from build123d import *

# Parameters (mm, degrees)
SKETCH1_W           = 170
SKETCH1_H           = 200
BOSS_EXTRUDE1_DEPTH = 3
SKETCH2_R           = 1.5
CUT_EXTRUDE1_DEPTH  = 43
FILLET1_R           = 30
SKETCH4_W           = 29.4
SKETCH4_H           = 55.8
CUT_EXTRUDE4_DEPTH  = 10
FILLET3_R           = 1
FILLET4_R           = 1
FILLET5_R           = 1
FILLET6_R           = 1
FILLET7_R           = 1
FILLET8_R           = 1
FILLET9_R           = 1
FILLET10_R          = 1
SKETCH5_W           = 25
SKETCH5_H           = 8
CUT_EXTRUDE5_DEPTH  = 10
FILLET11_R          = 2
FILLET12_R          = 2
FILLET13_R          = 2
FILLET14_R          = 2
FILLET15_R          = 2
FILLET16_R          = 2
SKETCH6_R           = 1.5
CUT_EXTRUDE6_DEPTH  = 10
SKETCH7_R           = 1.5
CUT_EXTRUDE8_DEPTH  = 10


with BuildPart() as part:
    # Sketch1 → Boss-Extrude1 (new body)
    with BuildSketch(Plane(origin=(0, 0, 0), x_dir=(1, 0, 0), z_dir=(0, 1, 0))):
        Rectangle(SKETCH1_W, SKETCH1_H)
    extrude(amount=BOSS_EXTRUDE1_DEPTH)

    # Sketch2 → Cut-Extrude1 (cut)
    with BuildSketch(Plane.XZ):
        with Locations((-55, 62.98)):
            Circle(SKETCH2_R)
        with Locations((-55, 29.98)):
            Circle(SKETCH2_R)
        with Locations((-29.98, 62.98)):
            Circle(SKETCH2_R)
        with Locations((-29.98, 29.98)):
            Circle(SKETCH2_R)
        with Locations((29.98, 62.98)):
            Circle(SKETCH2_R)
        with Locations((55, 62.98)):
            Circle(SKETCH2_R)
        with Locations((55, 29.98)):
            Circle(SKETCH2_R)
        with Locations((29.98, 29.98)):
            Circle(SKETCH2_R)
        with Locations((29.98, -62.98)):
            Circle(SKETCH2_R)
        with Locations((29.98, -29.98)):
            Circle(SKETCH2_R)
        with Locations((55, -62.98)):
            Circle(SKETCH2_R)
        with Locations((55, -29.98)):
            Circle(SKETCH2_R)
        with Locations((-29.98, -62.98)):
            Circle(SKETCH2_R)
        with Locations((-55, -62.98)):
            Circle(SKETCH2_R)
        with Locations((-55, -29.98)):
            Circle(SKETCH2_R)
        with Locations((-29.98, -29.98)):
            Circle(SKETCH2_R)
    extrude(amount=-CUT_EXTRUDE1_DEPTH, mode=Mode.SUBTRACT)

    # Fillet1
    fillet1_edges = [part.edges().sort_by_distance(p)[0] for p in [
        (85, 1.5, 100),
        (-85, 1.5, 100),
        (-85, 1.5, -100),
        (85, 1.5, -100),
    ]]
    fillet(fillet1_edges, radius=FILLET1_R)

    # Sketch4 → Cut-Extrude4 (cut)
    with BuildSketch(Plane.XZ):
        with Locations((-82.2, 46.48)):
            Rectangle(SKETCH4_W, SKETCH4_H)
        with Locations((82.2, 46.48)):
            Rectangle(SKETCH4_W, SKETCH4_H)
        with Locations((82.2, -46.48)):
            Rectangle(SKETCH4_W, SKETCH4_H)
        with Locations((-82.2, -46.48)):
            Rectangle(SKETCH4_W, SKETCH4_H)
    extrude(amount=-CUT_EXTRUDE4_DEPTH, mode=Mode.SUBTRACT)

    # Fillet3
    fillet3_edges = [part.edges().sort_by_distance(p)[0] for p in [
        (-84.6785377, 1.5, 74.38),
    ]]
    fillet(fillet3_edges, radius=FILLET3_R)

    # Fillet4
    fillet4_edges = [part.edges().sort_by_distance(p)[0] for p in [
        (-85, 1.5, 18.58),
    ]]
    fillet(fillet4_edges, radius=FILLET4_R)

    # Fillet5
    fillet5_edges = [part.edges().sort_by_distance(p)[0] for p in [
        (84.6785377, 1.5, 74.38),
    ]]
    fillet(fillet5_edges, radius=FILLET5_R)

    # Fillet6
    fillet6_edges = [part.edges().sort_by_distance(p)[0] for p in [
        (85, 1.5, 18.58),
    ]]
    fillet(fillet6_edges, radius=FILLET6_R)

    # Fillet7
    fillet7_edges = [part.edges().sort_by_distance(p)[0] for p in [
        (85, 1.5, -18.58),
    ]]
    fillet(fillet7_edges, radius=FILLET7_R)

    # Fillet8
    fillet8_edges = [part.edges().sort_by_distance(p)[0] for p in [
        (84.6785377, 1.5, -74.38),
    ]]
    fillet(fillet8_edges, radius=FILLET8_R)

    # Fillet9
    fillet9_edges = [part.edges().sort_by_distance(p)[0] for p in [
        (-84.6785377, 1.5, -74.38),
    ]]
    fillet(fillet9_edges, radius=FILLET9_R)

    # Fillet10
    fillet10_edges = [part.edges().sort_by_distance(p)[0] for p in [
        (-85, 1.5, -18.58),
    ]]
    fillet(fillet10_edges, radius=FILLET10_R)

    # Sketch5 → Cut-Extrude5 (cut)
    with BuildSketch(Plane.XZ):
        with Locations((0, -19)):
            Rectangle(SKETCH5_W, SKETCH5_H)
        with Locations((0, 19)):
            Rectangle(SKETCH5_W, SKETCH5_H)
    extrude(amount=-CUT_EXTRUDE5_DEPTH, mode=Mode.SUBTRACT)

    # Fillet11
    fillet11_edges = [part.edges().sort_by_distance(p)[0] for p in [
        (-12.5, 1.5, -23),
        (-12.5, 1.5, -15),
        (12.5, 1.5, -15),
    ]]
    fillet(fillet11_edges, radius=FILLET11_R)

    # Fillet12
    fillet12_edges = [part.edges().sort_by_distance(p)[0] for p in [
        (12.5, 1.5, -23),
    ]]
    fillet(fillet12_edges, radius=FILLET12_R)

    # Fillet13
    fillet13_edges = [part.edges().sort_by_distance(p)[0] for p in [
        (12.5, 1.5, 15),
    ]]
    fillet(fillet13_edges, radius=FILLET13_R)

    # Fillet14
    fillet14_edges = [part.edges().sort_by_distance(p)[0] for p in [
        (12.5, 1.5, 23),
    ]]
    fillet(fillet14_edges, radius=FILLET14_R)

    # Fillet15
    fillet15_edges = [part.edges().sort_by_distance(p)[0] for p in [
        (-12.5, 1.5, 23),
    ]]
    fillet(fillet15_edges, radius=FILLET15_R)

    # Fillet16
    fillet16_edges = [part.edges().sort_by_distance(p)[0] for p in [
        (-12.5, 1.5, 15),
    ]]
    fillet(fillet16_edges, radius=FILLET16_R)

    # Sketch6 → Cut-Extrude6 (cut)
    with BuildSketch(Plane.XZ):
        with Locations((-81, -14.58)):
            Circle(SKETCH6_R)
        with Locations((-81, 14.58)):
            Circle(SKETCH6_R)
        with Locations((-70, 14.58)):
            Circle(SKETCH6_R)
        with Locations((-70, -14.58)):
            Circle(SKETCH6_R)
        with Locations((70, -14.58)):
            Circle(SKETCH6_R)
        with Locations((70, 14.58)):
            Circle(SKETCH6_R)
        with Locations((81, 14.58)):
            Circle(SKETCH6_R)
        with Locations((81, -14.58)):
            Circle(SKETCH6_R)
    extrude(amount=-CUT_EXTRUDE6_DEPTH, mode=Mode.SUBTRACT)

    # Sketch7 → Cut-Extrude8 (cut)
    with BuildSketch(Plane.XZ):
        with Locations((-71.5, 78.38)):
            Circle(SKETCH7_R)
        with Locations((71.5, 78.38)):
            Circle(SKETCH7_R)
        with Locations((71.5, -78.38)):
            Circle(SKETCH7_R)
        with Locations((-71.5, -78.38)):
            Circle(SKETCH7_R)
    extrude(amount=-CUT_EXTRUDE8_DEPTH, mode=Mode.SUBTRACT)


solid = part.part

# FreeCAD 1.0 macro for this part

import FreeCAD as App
import Part
import Sketcher

V = App.Vector


def edges_at(feature, points):
    """Names of the edges that pass closest to the given points."""
    edges = feature.Shape.Edges
    near = lambda p: min(range(len(edges)), key=lambda i: edges[i].distToShape(Part.Vertex(*p))[0])
    return sorted({f"Edge{near(p) + 1}" for p in points})

doc = App.newDocument("Part")
body = doc.addObject("PartDesign::Body", "Body")

sketch1 = body.newObject("Sketcher::SketchObject", "Sketch")
sketch1.AttachmentSupport = (doc.getObject("XZ_Plane"), [""])
sketch1.MapMode = "FlatFace"
sketch1.addGeometry([
    Part.LineSegment(V(-85, -100, 0), V(-85, 100, 0)),
    Part.LineSegment(V(-85, 100, 0), V(85, 100, 0)),
    Part.LineSegment(V(85, 100, 0), V(85, -100, 0)),
    Part.LineSegment(V(85, -100, 0), V(-85, -100, 0)),
], False)
sketch1.addConstraint([
    Sketcher.Constraint("Coincident", 0, 2, 1, 1),
    Sketcher.Constraint("Coincident", 1, 2, 2, 1),
    Sketcher.Constraint("Coincident", 2, 2, 3, 1),
    Sketcher.Constraint("Coincident", 3, 2, 0, 1),
    Sketcher.Constraint("Vertical", 0),
    Sketcher.Constraint("Horizontal", 1),
    Sketcher.Constraint("Vertical", 2),
    Sketcher.Constraint("Horizontal", 3),
    Sketcher.Constraint("Symmetric", 0, 2, 2, 2, -1, 1),
    Sketcher.Constraint("DistanceX", 1, 1, 1, 2, 170.0),
    Sketcher.Constraint("DistanceY", 0, 1, 0, 2, 200.0),
])
pad1 = body.newObject("PartDesign::Pad", "Pad")
pad1.Profile = sketch1
pad1.Length = 3
pad1.Reversed = True

sketch2 = body.newObject("Sketcher::SketchObject", "Sketch001")
sketch2.AttachmentSupport = (doc.getObject("XZ_Plane"), [""])
sketch2.MapMode = "FlatFace"
sketch2.addGeometry([
    Part.Circle(V(-55, 63, 0), V(0, 0, 1), 1.5),
    Part.Circle(V(-55, 30, 0), V(0, 0, 1), 1.5),
    Part.Circle(V(-30, 63, 0), V(0, 0, 1), 1.5),
    Part.Circle(V(-30, 30, 0), V(0, 0, 1), 1.5),
    Part.Circle(V(30, 63, 0), V(0, 0, 1), 1.5),
    Part.Circle(V(55, 63, 0), V(0, 0, 1), 1.5),
    Part.Circle(V(55, 30, 0), V(0, 0, 1), 1.5),
    Part.Circle(V(30, 30, 0), V(0, 0, 1), 1.5),
    Part.Circle(V(30, -63, 0), V(0, 0, 1), 1.5),
    Part.Circle(V(30, -30, 0), V(0, 0, 1), 1.5),
    Part.Circle(V(55, -63, 0), V(0, 0, 1), 1.5),
    Part.Circle(V(55, -30, 0), V(0, 0, 1), 1.5),
    Part.Circle(V(-30, -63, 0), V(0, 0, 1), 1.5),
    Part.Circle(V(-55, -63, 0), V(0, 0, 1), 1.5),
    Part.Circle(V(-55, -30, 0), V(0, 0, 1), 1.5),
    Part.Circle(V(-30, -30, 0), V(0, 0, 1), 1.5),
], False)
sketch2.addConstraint([
    Sketcher.Constraint("Equal", 0, 1),
    Sketcher.Constraint("Equal", 1, 2),
    Sketcher.Constraint("Equal", 2, 3),
    Sketcher.Constraint("Equal", 3, 4),
    Sketcher.Constraint("Equal", 4, 5),
    Sketcher.Constraint("Equal", 5, 6),
    Sketcher.Constraint("Equal", 6, 7),
    Sketcher.Constraint("Equal", 7, 8),
    Sketcher.Constraint("Equal", 8, 9),
    Sketcher.Constraint("Equal", 9, 10),
    Sketcher.Constraint("Equal", 10, 11),
    Sketcher.Constraint("Equal", 11, 12),
    Sketcher.Constraint("Equal", 12, 13),
    Sketcher.Constraint("Equal", 13, 14),
    Sketcher.Constraint("Equal", 14, 15),
    Sketcher.Constraint("Symmetric", 2, 3, 8, 3, -1, 1),
    Sketcher.Constraint("Symmetric", 3, 3, 9, 3, -1, 1),
    Sketcher.Constraint("Symmetric", 0, 3, 10, 3, -1, 1),
    Sketcher.Constraint("Symmetric", 1, 3, 11, 3, -1, 1),
    Sketcher.Constraint("Symmetric", 4, 3, 12, 3, -1, 1),
    Sketcher.Constraint("Symmetric", 5, 3, 13, 3, -1, 1),
    Sketcher.Constraint("Symmetric", 6, 3, 14, 3, -1, 1),
    Sketcher.Constraint("Symmetric", 7, 3, 15, 3, -1, 1),
    Sketcher.Constraint("Symmetric", 2, 3, 4, 3, -2),
    Sketcher.Constraint("Symmetric", 0, 3, 5, 3, -2),
    Sketcher.Constraint("Symmetric", 1, 3, 6, 3, -2),
    Sketcher.Constraint("Symmetric", 3, 3, 7, 3, -2),
    Sketcher.Constraint("Horizontal", 0, 3, 2, 3),
    Sketcher.Constraint("Horizontal", 1, 3, 3, 3),
    Sketcher.Constraint("Vertical", 0, 3, 1, 3),
    Sketcher.Constraint("Vertical", 2, 3, 3, 3),
    Sketcher.Constraint("Diameter", 0, 3.0),
    Sketcher.Constraint("DistanceX", 0, 3, -1, 1, 55.0),
    Sketcher.Constraint("DistanceY", 1, 3, 0, 3, 33.0),
    Sketcher.Constraint("DistanceY", -1, 1, 0, 3, 62.98),
    Sketcher.Constraint("DistanceX", 2, 3, -1, 1, 29.98),
])
pocket1 = body.newObject("PartDesign::Pocket", "Pocket")
pocket1.Profile = sketch2
pocket1.Length = 43
doc.recompute()

fillet = body.newObject("PartDesign::Fillet", "Fillet")
fillet.Base = (pocket1, edges_at(pocket1, [
    (85, 1.5, 100),
    (-85, 1.5, 100),
    (-85, 1.5, -100),
    (85, 1.5, -100),
]))
fillet.Radius = 30

sketch3 = body.newObject("Sketcher::SketchObject", "Sketch002")
sketch3.AttachmentSupport = (doc.getObject("XZ_Plane"), [""])
sketch3.MapMode = "FlatFace"
sketch3.addGeometry([
    Part.LineSegment(V(-97, 74, 0), V(-97, 19, 0)),
    Part.LineSegment(V(-97, 19, 0), V(-68, 19, 0)),
    Part.LineSegment(V(-68, 19, 0), V(-68, 74, 0)),
    Part.LineSegment(V(-68, 74, 0), V(-97, 74, 0)),
    Part.LineSegment(V(68, 74, 0), V(68, 19, 0)),
    Part.LineSegment(V(68, 19, 0), V(97, 19, 0)),
    Part.LineSegment(V(97, 19, 0), V(97, 74, 0)),
    Part.LineSegment(V(97, 74, 0), V(68, 74, 0)),
    Part.LineSegment(V(68, -19, 0), V(68, -74, 0)),
    Part.LineSegment(V(68, -74, 0), V(97, -74, 0)),
    Part.LineSegment(V(97, -74, 0), V(97, -19, 0)),
    Part.LineSegment(V(97, -19, 0), V(68, -19, 0)),
    Part.LineSegment(V(-97, -19, 0), V(-97, -74, 0)),
    Part.LineSegment(V(-97, -74, 0), V(-68, -74, 0)),
    Part.LineSegment(V(-68, -74, 0), V(-68, -19, 0)),
    Part.LineSegment(V(-68, -19, 0), V(-97, -19, 0)),
], False)
sketch3.addConstraint([
    Sketcher.Constraint("Coincident", 0, 2, 1, 1),
    Sketcher.Constraint("Coincident", 1, 2, 2, 1),
    Sketcher.Constraint("Coincident", 2, 2, 3, 1),
    Sketcher.Constraint("Coincident", 3, 2, 0, 1),
    Sketcher.Constraint("Coincident", 4, 2, 5, 1),
    Sketcher.Constraint("Coincident", 5, 2, 6, 1),
    Sketcher.Constraint("Coincident", 6, 2, 7, 1),
    Sketcher.Constraint("Coincident", 7, 2, 4, 1),
    Sketcher.Constraint("Coincident", 8, 2, 9, 1),
    Sketcher.Constraint("Coincident", 9, 2, 10, 1),
    Sketcher.Constraint("Coincident", 10, 2, 11, 1),
    Sketcher.Constraint("Coincident", 11, 2, 8, 1),
    Sketcher.Constraint("Coincident", 12, 2, 13, 1),
    Sketcher.Constraint("Coincident", 13, 2, 14, 1),
    Sketcher.Constraint("Coincident", 14, 2, 15, 1),
    Sketcher.Constraint("Coincident", 15, 2, 12, 1),
    Sketcher.Constraint("Vertical", 0),
    Sketcher.Constraint("Horizontal", 1),
    Sketcher.Constraint("Vertical", 2),
    Sketcher.Constraint("Horizontal", 3),
    Sketcher.Constraint("Vertical", 4),
    Sketcher.Constraint("Horizontal", 5),
    Sketcher.Constraint("Vertical", 6),
    Sketcher.Constraint("Horizontal", 7),
    Sketcher.Constraint("Vertical", 8),
    Sketcher.Constraint("Horizontal", 9),
    Sketcher.Constraint("Vertical", 10),
    Sketcher.Constraint("Horizontal", 11),
    Sketcher.Constraint("Vertical", 12),
    Sketcher.Constraint("Horizontal", 13),
    Sketcher.Constraint("Vertical", 14),
    Sketcher.Constraint("Horizontal", 15),
    Sketcher.Constraint("Symmetric", 2, 2, 8, 2, -1, 1),
    Sketcher.Constraint("Symmetric", 0, 2, 10, 2, -1, 1),
    Sketcher.Constraint("Symmetric", 6, 2, 12, 2, -1, 1),
    Sketcher.Constraint("Symmetric", 4, 2, 14, 2, -1, 1),
    Sketcher.Constraint("Symmetric", 1, 2, 4, 2, -2),
    Sketcher.Constraint("Symmetric", 3, 2, 6, 2, -2),
    Sketcher.Constraint("DistanceX", 1, 1, 1, 2, 29.4),
    Sketcher.Constraint("DistanceY", 0, 2, 0, 1, 55.8),
    Sketcher.Constraint("DistanceX", 1, 2, 4, 2, 135.0),
    Sketcher.Constraint("DistanceY", -1, 1, 0, 2, 18.58),
])
pocket2 = body.newObject("PartDesign::Pocket", "Pocket001")
pocket2.Profile = sketch3
pocket2.Length = 10
doc.recompute()

fillet2 = body.newObject("PartDesign::Fillet", "Fillet001")
fillet2.Base = (pocket2, edges_at(pocket2, [(-84.679, 1.5, 74.38)]))
fillet2.Radius = 1
doc.recompute()

fillet3 = body.newObject("PartDesign::Fillet", "Fillet002")
fillet3.Base = (fillet2, edges_at(fillet2, [(-85, 1.5, 18.58)]))
fillet3.Radius = 1
doc.recompute()

fillet4 = body.newObject("PartDesign::Fillet", "Fillet003")
fillet4.Base = (fillet3, edges_at(fillet3, [(84.679, 1.5, 74.38)]))
fillet4.Radius = 1
doc.recompute()

fillet5 = body.newObject("PartDesign::Fillet", "Fillet004")
fillet5.Base = (fillet4, edges_at(fillet4, [(85, 1.5, 18.58)]))
fillet5.Radius = 1
doc.recompute()

fillet6 = body.newObject("PartDesign::Fillet", "Fillet005")
fillet6.Base = (fillet5, edges_at(fillet5, [(85, 1.5, -18.58)]))
fillet6.Radius = 1
doc.recompute()

fillet7 = body.newObject("PartDesign::Fillet", "Fillet006")
fillet7.Base = (fillet6, edges_at(fillet6, [(84.679, 1.5, -74.38)]))
fillet7.Radius = 1
doc.recompute()

fillet8 = body.newObject("PartDesign::Fillet", "Fillet007")
fillet8.Base = (fillet7, edges_at(fillet7, [(-84.679, 1.5, -74.38)]))
fillet8.Radius = 1
doc.recompute()

fillet9 = body.newObject("PartDesign::Fillet", "Fillet008")
fillet9.Base = (fillet8, edges_at(fillet8, [(-85, 1.5, -18.58)]))
fillet9.Radius = 1

sketch4 = body.newObject("Sketcher::SketchObject", "Sketch003")
sketch4.AttachmentSupport = (doc.getObject("XZ_Plane"), [""])
sketch4.MapMode = "FlatFace"
sketch4.addGeometry([
    Part.LineSegment(V(-12, -15, 0), V(-12, -23, 0)),
    Part.LineSegment(V(-12, -23, 0), V(12, -23, 0)),
    Part.LineSegment(V(12, -23, 0), V(12, -15, 0)),
    Part.LineSegment(V(12, -15, 0), V(-12, -15, 0)),
    Part.LineSegment(V(-12, 23, 0), V(-12, 15, 0)),
    Part.LineSegment(V(-12, 15, 0), V(12, 15, 0)),
    Part.LineSegment(V(12, 15, 0), V(12, 23, 0)),
    Part.LineSegment(V(12, 23, 0), V(-12, 23, 0)),
], False)
sketch4.addConstraint([
    Sketcher.Constraint("Coincident", 0, 2, 1, 1),
    Sketcher.Constraint("Coincident", 1, 2, 2, 1),
    Sketcher.Constraint("Coincident", 2, 2, 3, 1),
    Sketcher.Constraint("Coincident", 3, 2, 0, 1),
    Sketcher.Constraint("Coincident", 4, 2, 5, 1),
    Sketcher.Constraint("Coincident", 5, 2, 6, 1),
    Sketcher.Constraint("Coincident", 6, 2, 7, 1),
    Sketcher.Constraint("Coincident", 7, 2, 4, 1),
    Sketcher.Constraint("Vertical", 0),
    Sketcher.Constraint("Horizontal", 1),
    Sketcher.Constraint("Vertical", 2),
    Sketcher.Constraint("Horizontal", 3),
    Sketcher.Constraint("Vertical", 4),
    Sketcher.Constraint("Horizontal", 5),
    Sketcher.Constraint("Vertical", 6),
    Sketcher.Constraint("Horizontal", 7),
    Sketcher.Constraint("Symmetric", 2, 2, 4, 2, -1, 1),
    Sketcher.Constraint("Symmetric", 0, 2, 6, 2, -1, 1),
    Sketcher.Constraint("Vertical", 3, 2, 4, 2),
    Sketcher.Constraint("DistanceX", 1, 1, 1, 2, 25.0),
    Sketcher.Constraint("DistanceY", 0, 2, 0, 1, 8.0),
    Sketcher.Constraint("DistanceY", 0, 2, -1, 1, 23.0),
])
pocket3 = body.newObject("PartDesign::Pocket", "Pocket002")
pocket3.Profile = sketch4
pocket3.Length = 10
doc.recompute()

fillet10 = body.newObject("PartDesign::Fillet", "Fillet009")
fillet10.Base = (pocket3, edges_at(pocket3, [(-12.5, 1.5, -23), (-12.5, 1.5, -15), (12.5, 1.5, -15)]))
fillet10.Radius = 2
doc.recompute()

fillet11 = body.newObject("PartDesign::Fillet", "Fillet010")
fillet11.Base = (fillet10, edges_at(fillet10, [(12.5, 1.5, -23)]))
fillet11.Radius = 2
doc.recompute()

fillet12 = body.newObject("PartDesign::Fillet", "Fillet011")
fillet12.Base = (fillet11, edges_at(fillet11, [(12.5, 1.5, 15)]))
fillet12.Radius = 2
doc.recompute()

fillet13 = body.newObject("PartDesign::Fillet", "Fillet012")
fillet13.Base = (fillet12, edges_at(fillet12, [(12.5, 1.5, 23)]))
fillet13.Radius = 2
doc.recompute()

fillet14 = body.newObject("PartDesign::Fillet", "Fillet013")
fillet14.Base = (fillet13, edges_at(fillet13, [(-12.5, 1.5, 23)]))
fillet14.Radius = 2
doc.recompute()

fillet15 = body.newObject("PartDesign::Fillet", "Fillet014")
fillet15.Base = (fillet14, edges_at(fillet14, [(-12.5, 1.5, 15)]))
fillet15.Radius = 2

sketch5 = body.newObject("Sketcher::SketchObject", "Sketch004")
sketch5.AttachmentSupport = (doc.getObject("XZ_Plane"), [""])
sketch5.MapMode = "FlatFace"
sketch5.addGeometry([
    Part.Circle(V(-81, -14.6, 0), V(0, 0, 1), 1.5),
    Part.Circle(V(-81, 14.6, 0), V(0, 0, 1), 1.5),
    Part.Circle(V(-70, 14.6, 0), V(0, 0, 1), 1.5),
    Part.Circle(V(-70, -14.6, 0), V(0, 0, 1), 1.5),
    Part.Circle(V(70, -14.6, 0), V(0, 0, 1), 1.5),
    Part.Circle(V(70, 14.6, 0), V(0, 0, 1), 1.5),
    Part.Circle(V(81, 14.6, 0), V(0, 0, 1), 1.5),
    Part.Circle(V(81, -14.6, 0), V(0, 0, 1), 1.5),
], False)
sketch5.addConstraint([
    Sketcher.Constraint("Equal", 0, 1),
    Sketcher.Constraint("Equal", 1, 2),
    Sketcher.Constraint("Equal", 2, 3),
    Sketcher.Constraint("Equal", 3, 4),
    Sketcher.Constraint("Equal", 4, 5),
    Sketcher.Constraint("Equal", 5, 6),
    Sketcher.Constraint("Equal", 6, 7),
    Sketcher.Constraint("Symmetric", 2, 3, 4, 3, -1, 1),
    Sketcher.Constraint("Symmetric", 3, 3, 5, 3, -1, 1),
    Sketcher.Constraint("Symmetric", 0, 3, 6, 3, -1, 1),
    Sketcher.Constraint("Symmetric", 1, 3, 7, 3, -1, 1),
    Sketcher.Constraint("Symmetric", 3, 3, 4, 3, -2),
    Sketcher.Constraint("Symmetric", 1, 3, 6, 3, -2),
    Sketcher.Constraint("Horizontal", 1, 3, 2, 3),
    Sketcher.Constraint("Diameter", 0, 3.0),
    Sketcher.Constraint("DistanceX", 0, 3, -1, 1, 81.0),
    Sketcher.Constraint("DistanceX", 2, 3, -1, 1, 70.0),
    Sketcher.Constraint("DistanceY", 0, 3, -1, 1, 14.58),
])
pocket4 = body.newObject("PartDesign::Pocket", "Pocket003")
pocket4.Profile = sketch5
pocket4.Length = 10

sketch6 = body.newObject("Sketcher::SketchObject", "Sketch005")
sketch6.AttachmentSupport = (doc.getObject("XZ_Plane"), [""])
sketch6.MapMode = "FlatFace"
sketch6.addGeometry([
    Part.Circle(V(-71.5, 78.4, 0), V(0, 0, 1), 1.5),
    Part.Circle(V(71.5, 78.4, 0), V(0, 0, 1), 1.5),
    Part.Circle(V(71.5, -78.4, 0), V(0, 0, 1), 1.5),
    Part.Circle(V(-71.5, -78.4, 0), V(0, 0, 1), 1.5),
], False)
sketch6.addConstraint([
    Sketcher.Constraint("Equal", 0, 1),
    Sketcher.Constraint("Equal", 1, 2),
    Sketcher.Constraint("Equal", 2, 3),
    Sketcher.Constraint("Symmetric", 0, 3, 2, 3, -1, 1),
    Sketcher.Constraint("Symmetric", 1, 3, 3, 3, -1, 1),
    Sketcher.Constraint("Symmetric", 0, 3, 1, 3, -2),
    Sketcher.Constraint("Diameter", 0, 3.0),
    Sketcher.Constraint("DistanceX", 0, 3, 1, 3, 143.0),
    Sketcher.Constraint("DistanceY", -1, 1, 0, 3, 78.38),
])
pocket5 = body.newObject("PartDesign::Pocket", "Pocket004")
pocket5.Profile = sketch6
pocket5.Length = 10

doc.recompute()
